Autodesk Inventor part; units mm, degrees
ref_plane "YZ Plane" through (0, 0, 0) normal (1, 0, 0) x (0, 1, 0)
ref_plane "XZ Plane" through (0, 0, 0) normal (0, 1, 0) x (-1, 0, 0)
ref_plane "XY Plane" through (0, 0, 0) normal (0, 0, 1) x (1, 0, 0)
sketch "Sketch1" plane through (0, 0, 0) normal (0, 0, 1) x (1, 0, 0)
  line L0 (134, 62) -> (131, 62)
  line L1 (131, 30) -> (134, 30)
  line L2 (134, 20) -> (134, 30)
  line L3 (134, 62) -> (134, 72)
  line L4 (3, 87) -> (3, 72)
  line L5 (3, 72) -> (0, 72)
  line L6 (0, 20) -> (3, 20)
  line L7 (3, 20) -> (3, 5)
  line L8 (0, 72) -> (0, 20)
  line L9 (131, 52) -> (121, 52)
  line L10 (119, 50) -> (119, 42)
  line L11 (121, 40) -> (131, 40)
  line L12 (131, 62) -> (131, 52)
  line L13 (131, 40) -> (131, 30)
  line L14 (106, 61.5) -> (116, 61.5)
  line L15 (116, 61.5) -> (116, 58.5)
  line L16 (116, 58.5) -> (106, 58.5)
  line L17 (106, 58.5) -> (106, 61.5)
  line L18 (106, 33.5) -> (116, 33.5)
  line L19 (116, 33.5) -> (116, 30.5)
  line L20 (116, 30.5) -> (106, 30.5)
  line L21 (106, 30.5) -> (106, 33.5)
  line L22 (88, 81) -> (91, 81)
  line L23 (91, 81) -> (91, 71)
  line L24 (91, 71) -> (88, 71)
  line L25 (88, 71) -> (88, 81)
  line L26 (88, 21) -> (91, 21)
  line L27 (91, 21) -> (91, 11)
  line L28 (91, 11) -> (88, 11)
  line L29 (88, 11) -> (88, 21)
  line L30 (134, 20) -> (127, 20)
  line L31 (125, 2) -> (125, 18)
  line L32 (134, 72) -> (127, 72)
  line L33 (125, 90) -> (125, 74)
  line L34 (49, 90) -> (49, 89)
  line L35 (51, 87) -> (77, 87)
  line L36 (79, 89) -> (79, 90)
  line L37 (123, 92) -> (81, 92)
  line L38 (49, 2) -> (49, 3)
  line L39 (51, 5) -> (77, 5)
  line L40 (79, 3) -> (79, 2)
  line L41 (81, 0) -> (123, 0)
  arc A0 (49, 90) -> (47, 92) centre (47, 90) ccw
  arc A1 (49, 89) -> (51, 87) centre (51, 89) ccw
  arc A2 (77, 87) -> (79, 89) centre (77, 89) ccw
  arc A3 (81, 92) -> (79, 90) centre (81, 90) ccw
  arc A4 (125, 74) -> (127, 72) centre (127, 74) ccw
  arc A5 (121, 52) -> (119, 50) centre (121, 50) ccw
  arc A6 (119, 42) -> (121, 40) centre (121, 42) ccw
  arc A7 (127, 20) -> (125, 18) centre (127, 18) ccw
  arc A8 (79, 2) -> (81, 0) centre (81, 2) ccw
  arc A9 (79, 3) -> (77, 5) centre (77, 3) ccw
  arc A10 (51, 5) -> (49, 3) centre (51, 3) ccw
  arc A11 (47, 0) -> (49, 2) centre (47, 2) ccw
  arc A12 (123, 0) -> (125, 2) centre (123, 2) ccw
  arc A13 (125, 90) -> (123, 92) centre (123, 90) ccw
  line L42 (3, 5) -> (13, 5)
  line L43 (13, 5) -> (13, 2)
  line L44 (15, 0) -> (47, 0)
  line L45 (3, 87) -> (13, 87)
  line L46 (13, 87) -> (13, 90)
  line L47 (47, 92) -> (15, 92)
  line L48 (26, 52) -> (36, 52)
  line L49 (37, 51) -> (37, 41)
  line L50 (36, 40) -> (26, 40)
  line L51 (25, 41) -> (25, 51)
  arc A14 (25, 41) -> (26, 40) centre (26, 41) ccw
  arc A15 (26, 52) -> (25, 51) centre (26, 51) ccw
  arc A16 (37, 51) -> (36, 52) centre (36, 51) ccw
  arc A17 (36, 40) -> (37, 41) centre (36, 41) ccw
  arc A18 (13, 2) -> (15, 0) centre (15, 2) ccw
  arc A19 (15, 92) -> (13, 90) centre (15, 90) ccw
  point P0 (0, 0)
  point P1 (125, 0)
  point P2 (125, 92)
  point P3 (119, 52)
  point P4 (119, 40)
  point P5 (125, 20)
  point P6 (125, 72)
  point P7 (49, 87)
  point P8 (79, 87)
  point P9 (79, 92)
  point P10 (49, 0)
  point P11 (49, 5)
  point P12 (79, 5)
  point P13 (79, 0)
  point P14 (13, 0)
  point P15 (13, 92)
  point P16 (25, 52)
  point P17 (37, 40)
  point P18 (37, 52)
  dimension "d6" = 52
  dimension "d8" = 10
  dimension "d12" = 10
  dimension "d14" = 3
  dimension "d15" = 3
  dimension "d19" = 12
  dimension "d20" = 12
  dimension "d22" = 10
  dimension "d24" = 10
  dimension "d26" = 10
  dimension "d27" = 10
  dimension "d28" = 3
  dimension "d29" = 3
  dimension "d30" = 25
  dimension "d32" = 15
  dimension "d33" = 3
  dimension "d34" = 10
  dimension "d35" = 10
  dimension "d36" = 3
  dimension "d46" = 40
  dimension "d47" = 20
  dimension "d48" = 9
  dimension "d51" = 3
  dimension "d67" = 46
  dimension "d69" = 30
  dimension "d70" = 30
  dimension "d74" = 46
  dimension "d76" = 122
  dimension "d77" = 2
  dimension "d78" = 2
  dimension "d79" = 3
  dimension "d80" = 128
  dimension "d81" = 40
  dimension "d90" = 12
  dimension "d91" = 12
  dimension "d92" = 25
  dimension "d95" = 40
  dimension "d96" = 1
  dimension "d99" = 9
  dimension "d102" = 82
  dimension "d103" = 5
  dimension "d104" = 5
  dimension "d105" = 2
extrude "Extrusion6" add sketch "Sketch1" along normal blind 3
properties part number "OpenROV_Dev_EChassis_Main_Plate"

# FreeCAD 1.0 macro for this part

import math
import FreeCAD as App
import Part
import Sketcher
from FreeCAD import Vector
Q = App.Units.Quantity


def add_polygon(sketch, points):
    """Adds a closed chain of lines whose ends are joined by coincident constraints."""
    first, n = sketch.GeometryCount, len(points)
    for a, b in zip(points, points[1:] + points[:1]):
        sketch.addGeometry(Part.LineSegment(App.Vector(*a, 0), App.Vector(*b, 0)), False)
    for i in range(n):
        sketch.addConstraint(Sketcher.Constraint("Coincident", first + i, 2, first + (i + 1) % n, 1))

doc = App.newDocument("Part")
body = doc.addObject("PartDesign::Body", "Body")

# Sketch on XY plane
sketch1 = body.newObject("Sketcher::SketchObject", "Sketch")
sketch1.AttachmentSupport = (doc.getObject("XY_Plane"), [""])
sketch1.MapMode = "FlatFace"
sketch1.addGeometry(Part.LineSegment(Vector(131, 62, 0), Vector(134, 62, 0)), False)  # 0
sketch1.addGeometry(Part.LineSegment(Vector(134, 62, 0), Vector(134, 72, 0)), False)  # 1
sketch1.addGeometry(Part.LineSegment(Vector(134, 72, 0), Vector(127, 72, 0)), False)  # 2
sketch1.addGeometry(Part.ArcOfCircle(Part.Circle(Vector(127, 74, 0), Vector(0, 0, 1), 2), math.radians(180), math.radians(270)), False)  # 3
sketch1.addGeometry(Part.LineSegment(Vector(125, 74, 0), Vector(125, 90, 0)), False)  # 4
sketch1.addGeometry(Part.ArcOfCircle(Part.Circle(Vector(123, 90, 0), Vector(0, 0, 1), 2), math.radians(0), math.radians(90)), False)  # 5
sketch1.addGeometry(Part.LineSegment(Vector(123, 92, 0), Vector(81, 92, 0)), False)  # 6
sketch1.addGeometry(Part.ArcOfCircle(Part.Circle(Vector(81, 90, 0), Vector(0, 0, 1), 2), math.radians(90), math.radians(180)), False)  # 7
sketch1.addGeometry(Part.LineSegment(Vector(79, 90, 0), Vector(79, 89, 0)), False)  # 8
sketch1.addGeometry(Part.ArcOfCircle(Part.Circle(Vector(77, 89, 0), Vector(0, 0, 1), 2), math.radians(-90), math.radians(0)), False)  # 9
sketch1.addGeometry(Part.LineSegment(Vector(77, 87, 0), Vector(51, 87, 0)), False)  # 10
sketch1.addGeometry(Part.ArcOfCircle(Part.Circle(Vector(51, 89, 0), Vector(0, 0, 1), 2), math.radians(180), math.radians(270)), False)  # 11
sketch1.addGeometry(Part.LineSegment(Vector(49, 89, 0), Vector(49, 90, 0)), False)  # 12
sketch1.addGeometry(Part.ArcOfCircle(Part.Circle(Vector(47, 90, 0), Vector(0, 0, 1), 2), math.radians(0), math.radians(90)), False)  # 13
sketch1.addGeometry(Part.LineSegment(Vector(47, 92, 0), Vector(15, 92, 0)), False)  # 14
sketch1.addGeometry(Part.ArcOfCircle(Part.Circle(Vector(15, 90, 0), Vector(0, 0, 1), 2), math.radians(90), math.radians(180)), False)  # 15
sketch1.addGeometry(Part.LineSegment(Vector(13, 90, 0), Vector(13, 87, 0)), False)  # 16
sketch1.addGeometry(Part.LineSegment(Vector(13, 87, 0), Vector(3, 87, 0)), False)  # 17
sketch1.addGeometry(Part.LineSegment(Vector(3, 87, 0), Vector(3, 72, 0)), False)  # 18
sketch1.addGeometry(Part.LineSegment(Vector(3, 72, 0), Vector(0, 72, 0)), False)  # 19
sketch1.addGeometry(Part.LineSegment(Vector(0, 72, 0), Vector(0, 20, 0)), False)  # 20
sketch1.addGeometry(Part.LineSegment(Vector(0, 20, 0), Vector(3, 20, 0)), False)  # 21
sketch1.addGeometry(Part.LineSegment(Vector(3, 20, 0), Vector(3, 5, 0)), False)  # 22
sketch1.addGeometry(Part.LineSegment(Vector(3, 5, 0), Vector(13, 5, 0)), False)  # 23
sketch1.addGeometry(Part.LineSegment(Vector(13, 5, 0), Vector(13, 2, 0)), False)  # 24
sketch1.addGeometry(Part.ArcOfCircle(Part.Circle(Vector(15, 2, 0), Vector(0, 0, 1), 2), math.radians(180), math.radians(270)), False)  # 25
sketch1.addGeometry(Part.LineSegment(Vector(15, 0, 0), Vector(47, 0, 0)), False)  # 26
sketch1.addGeometry(Part.ArcOfCircle(Part.Circle(Vector(47, 2, 0), Vector(0, 0, 1), 2), math.radians(-90), math.radians(0)), False)  # 27
sketch1.addGeometry(Part.LineSegment(Vector(49, 2, 0), Vector(49, 3, 0)), False)  # 28
sketch1.addGeometry(Part.ArcOfCircle(Part.Circle(Vector(51, 3, 0), Vector(0, 0, 1), 2), math.radians(90), math.radians(180)), False)  # 29
sketch1.addGeometry(Part.LineSegment(Vector(51, 5, 0), Vector(77, 5, 0)), False)  # 30
sketch1.addGeometry(Part.ArcOfCircle(Part.Circle(Vector(77, 3, 0), Vector(0, 0, 1), 2), math.radians(0), math.radians(90)), False)  # 31
sketch1.addGeometry(Part.LineSegment(Vector(79, 3, 0), Vector(79, 2, 0)), False)  # 32
sketch1.addGeometry(Part.ArcOfCircle(Part.Circle(Vector(81, 2, 0), Vector(0, 0, 1), 2), math.radians(180), math.radians(270)), False)  # 33
sketch1.addGeometry(Part.LineSegment(Vector(81, 0, 0), Vector(123, 0, 0)), False)  # 34
sketch1.addGeometry(Part.ArcOfCircle(Part.Circle(Vector(123, 2, 0), Vector(0, 0, 1), 2), math.radians(-90), math.radians(0)), False)  # 35
sketch1.addGeometry(Part.LineSegment(Vector(125, 2, 0), Vector(125, 18, 0)), False)  # 36
sketch1.addGeometry(Part.ArcOfCircle(Part.Circle(Vector(127, 18, 0), Vector(0, 0, 1), 2), math.radians(90), math.radians(180)), False)  # 37
sketch1.addGeometry(Part.LineSegment(Vector(127, 20, 0), Vector(134, 20, 0)), False)  # 38
sketch1.addGeometry(Part.LineSegment(Vector(134, 20, 0), Vector(134, 30, 0)), False)  # 39
sketch1.addGeometry(Part.LineSegment(Vector(134, 30, 0), Vector(131, 30, 0)), False)  # 40
sketch1.addGeometry(Part.LineSegment(Vector(131, 30, 0), Vector(131, 40, 0)), False)  # 41
sketch1.addGeometry(Part.LineSegment(Vector(131, 40, 0), Vector(121, 40, 0)), False)  # 42
sketch1.addGeometry(Part.ArcOfCircle(Part.Circle(Vector(121, 42, 0), Vector(0, 0, 1), 2), math.radians(180), math.radians(270)), False)  # 43
sketch1.addGeometry(Part.LineSegment(Vector(119, 42, 0), Vector(119, 50, 0)), False)  # 44
sketch1.addGeometry(Part.ArcOfCircle(Part.Circle(Vector(121, 50, 0), Vector(0, 0, 1), 2), math.radians(90), math.radians(180)), False)  # 45
sketch1.addGeometry(Part.LineSegment(Vector(121, 52, 0), Vector(131, 52, 0)), False)  # 46
sketch1.addGeometry(Part.LineSegment(Vector(131, 52, 0), Vector(131, 62, 0)), False)  # 47
add_polygon(sketch1, [(88, 11), (88, 21), (91, 21), (91, 11)])  # lines 48-51
add_polygon(sketch1, [(106, 30.5), (106, 33.5), (116, 33.5), (116, 30.5)])  # lines 52-55
sketch1.addGeometry(Part.ArcOfCircle(Part.Circle(Vector(26, 51, 0), Vector(0, 0, 1), 1), math.radians(90), math.radians(180)), False)  # 56
sketch1.addGeometry(Part.LineSegment(Vector(26, 52, 0), Vector(36, 52, 0)), False)  # 57
sketch1.addGeometry(Part.ArcOfCircle(Part.Circle(Vector(36, 51, 0), Vector(0, 0, 1), 1), math.radians(0), math.radians(90)), False)  # 58
sketch1.addGeometry(Part.LineSegment(Vector(37, 51, 0), Vector(37, 41, 0)), False)  # 59
sketch1.addGeometry(Part.ArcOfCircle(Part.Circle(Vector(36, 41, 0), Vector(0, 0, 1), 1), math.radians(-90), math.radians(0)), False)  # 60
sketch1.addGeometry(Part.LineSegment(Vector(36, 40, 0), Vector(26, 40, 0)), False)  # 61
sketch1.addGeometry(Part.ArcOfCircle(Part.Circle(Vector(26, 41, 0), Vector(0, 0, 1), 1), math.radians(180), math.radians(270)), False)  # 62
sketch1.addGeometry(Part.LineSegment(Vector(25, 41, 0), Vector(25, 51, 0)), False)  # 63
add_polygon(sketch1, [(106, 58.5), (106, 61.5), (116, 61.5), (116, 58.5)])  # lines 64-67
add_polygon(sketch1, [(88, 71), (88, 81), (91, 81), (91, 71)])  # lines 68-71
sketch1.addConstraint([
    Sketcher.Constraint("Coincident", 0, 2, 1, 1),
    Sketcher.Constraint("Coincident", 1, 2, 2, 1),
    Sketcher.Constraint("Tangent", 2, 2, 3, 2),
    Sketcher.Constraint("Tangent", 3, 1, 4, 1),
    Sketcher.Constraint("Tangent", 4, 2, 5, 1),
    Sketcher.Constraint("Tangent", 5, 2, 6, 1),
    Sketcher.Constraint("Tangent", 6, 2, 7, 1),
    Sketcher.Constraint("Tangent", 7, 2, 8, 1),
    Sketcher.Constraint("Tangent", 8, 2, 9, 2),
    Sketcher.Constraint("Tangent", 9, 1, 10, 1),
    Sketcher.Constraint("Tangent", 10, 2, 11, 2),
    Sketcher.Constraint("Tangent", 11, 1, 12, 1),
    Sketcher.Constraint("Tangent", 12, 2, 13, 1),
    Sketcher.Constraint("Tangent", 13, 2, 14, 1),
    Sketcher.Constraint("Tangent", 14, 2, 15, 1),
    Sketcher.Constraint("Tangent", 15, 2, 16, 1),
    Sketcher.Constraint("Coincident", 16, 2, 17, 1),
    Sketcher.Constraint("Coincident", 17, 2, 18, 1),
    Sketcher.Constraint("Coincident", 18, 2, 19, 1),
    Sketcher.Constraint("Coincident", 19, 2, 20, 1),
    Sketcher.Constraint("Coincident", 20, 2, 21, 1),
    Sketcher.Constraint("Coincident", 21, 2, 22, 1),
    Sketcher.Constraint("Coincident", 22, 2, 23, 1),
    Sketcher.Constraint("Coincident", 23, 2, 24, 1),
    Sketcher.Constraint("Tangent", 24, 2, 25, 1),
    Sketcher.Constraint("Tangent", 25, 2, 26, 1),
    Sketcher.Constraint("Tangent", 26, 2, 27, 1),
    Sketcher.Constraint("Tangent", 27, 2, 28, 1),
    Sketcher.Constraint("Tangent", 28, 2, 29, 2),
    Sketcher.Constraint("Tangent", 29, 1, 30, 1),
    Sketcher.Constraint("Tangent", 30, 2, 31, 2),
    Sketcher.Constraint("Tangent", 31, 1, 32, 1),
    Sketcher.Constraint("Tangent", 32, 2, 33, 1),
    Sketcher.Constraint("Tangent", 33, 2, 34, 1),
    Sketcher.Constraint("Tangent", 34, 2, 35, 1),
    Sketcher.Constraint("Tangent", 35, 2, 36, 1),
    Sketcher.Constraint("Tangent", 36, 2, 37, 2),
    Sketcher.Constraint("Tangent", 37, 1, 38, 1),
    Sketcher.Constraint("Coincident", 38, 2, 39, 1),
    Sketcher.Constraint("Coincident", 39, 2, 40, 1),
    Sketcher.Constraint("Coincident", 40, 2, 41, 1),
    Sketcher.Constraint("Coincident", 41, 2, 42, 1),
    Sketcher.Constraint("Tangent", 42, 2, 43, 2),
    Sketcher.Constraint("Tangent", 43, 1, 44, 1),
    Sketcher.Constraint("Tangent", 44, 2, 45, 2),
    Sketcher.Constraint("Tangent", 45, 1, 46, 1),
    Sketcher.Constraint("Coincident", 46, 2, 47, 1),
    Sketcher.Constraint("Coincident", 47, 2, 0, 1),
    Sketcher.Constraint("Tangent", 56, 1, 57, 1),
    Sketcher.Constraint("Tangent", 57, 2, 58, 2),
    Sketcher.Constraint("Tangent", 58, 1, 59, 1),
    Sketcher.Constraint("Tangent", 59, 2, 60, 2),
    Sketcher.Constraint("Tangent", 60, 1, 61, 1),
    Sketcher.Constraint("Tangent", 61, 2, 62, 2),
    Sketcher.Constraint("Tangent", 62, 1, 63, 1),
    Sketcher.Constraint("Tangent", 63, 2, 56, 2),
    Sketcher.Constraint("Horizontal", 0),
    Sketcher.Constraint("Vertical", 1),
    Sketcher.Constraint("Horizontal", 2),
    Sketcher.Constraint("Vertical", 4),
    Sketcher.Constraint("Horizontal", 6),
    Sketcher.Constraint("Vertical", 8),
    Sketcher.Constraint("Horizontal", 10),
    Sketcher.Constraint("Vertical", 12),
    Sketcher.Constraint("Horizontal", 14),
    Sketcher.Constraint("Vertical", 16),
    Sketcher.Constraint("Horizontal", 17),
    Sketcher.Constraint("Vertical", 18),
    Sketcher.Constraint("Horizontal", 19),
    Sketcher.Constraint("Vertical", 20),
    Sketcher.Constraint("Horizontal", 21),
    Sketcher.Constraint("Vertical", 22),
    Sketcher.Constraint("Horizontal", 23),
    Sketcher.Constraint("Vertical", 24),
    Sketcher.Constraint("Horizontal", 26),
    Sketcher.Constraint("Vertical", 28),
    Sketcher.Constraint("Horizontal", 30),
    Sketcher.Constraint("Vertical", 32),
    Sketcher.Constraint("Horizontal", 34),
    Sketcher.Constraint("Vertical", 36),
    Sketcher.Constraint("Horizontal", 38),
    Sketcher.Constraint("Vertical", 39),
    Sketcher.Constraint("Horizontal", 40),
    Sketcher.Constraint("Vertical", 41),
    Sketcher.Constraint("Horizontal", 42),
    Sketcher.Constraint("Vertical", 44),
    Sketcher.Constraint("Horizontal", 46),
    Sketcher.Constraint("Vertical", 47),
    Sketcher.Constraint("Vertical", 48),
    Sketcher.Constraint("Horizontal", 49),
    Sketcher.Constraint("Vertical", 50),
    Sketcher.Constraint("Horizontal", 51),
    Sketcher.Constraint("Vertical", 52),
    Sketcher.Constraint("Horizontal", 53),
    Sketcher.Constraint("Vertical", 54),
    Sketcher.Constraint("Horizontal", 55),
    Sketcher.Constraint("Horizontal", 57),
    Sketcher.Constraint("Vertical", 59),
    Sketcher.Constraint("Horizontal", 61),
    Sketcher.Constraint("Vertical", 63),
    Sketcher.Constraint("Vertical", 64),
    Sketcher.Constraint("Horizontal", 65),
    Sketcher.Constraint("Vertical", 66),
    Sketcher.Constraint("Horizontal", 67),
    Sketcher.Constraint("Vertical", 68),
    Sketcher.Constraint("Horizontal", 69),
    Sketcher.Constraint("Vertical", 70),
    Sketcher.Constraint("Horizontal", 71),
    Sketcher.Constraint("Equal", 3, 5),
    Sketcher.Constraint("Equal", 5, 7),
    Sketcher.Constraint("Equal", 7, 9),
    Sketcher.Constraint("Equal", 9, 11),
    Sketcher.Constraint("Equal", 11, 13),
    Sketcher.Constraint("Equal", 13, 15),
    Sketcher.Constraint("Equal", 15, 25),
    Sketcher.Constraint("Equal", 25, 27),
    Sketcher.Constraint("Equal", 27, 29),
    Sketcher.Constraint("Equal", 29, 31),
    Sketcher.Constraint("Equal", 31, 33),
    Sketcher.Constraint("Equal", 33, 35),
    Sketcher.Constraint("Equal", 35, 37),
    Sketcher.Constraint("Equal", 37, 43),
    Sketcher.Constraint("Equal", 43, 45),
    Sketcher.Constraint("Equal", 56, 58),
    Sketcher.Constraint("Equal", 58, 60),
    Sketcher.Constraint("Equal", 60, 62),
    Sketcher.Constraint("PointOnObject", 19, 2, -2),
    Sketcher.Constraint("PointOnObject", 25, 2, -1),
    Sketcher.Constraint("PointOnObject", 33, 2, -1),
    Sketcher.Constraint("Horizontal", 7, 3, 13, 3),
    Sketcher.Constraint("Horizontal", 10, 2, 16, 2),
    Sketcher.Constraint("Horizontal", 2, 2, 18, 2),
    Sketcher.Constraint("Horizontal", 23, 2, 29, 1),
    Sketcher.Constraint("Horizontal", 21, 2, 37, 1),
    Sketcher.Constraint("Horizontal", 46, 2, 56, 1),
    Sketcher.Constraint("Horizontal", 42, 2, 60, 1),
    Sketcher.Constraint("Vertical", 15, 3, 25, 3),
    Sketcher.Constraint("Vertical", 13, 3, 27, 3),
    Sketcher.Constraint("Vertical", 9, 3, 31, 3),
    Sketcher.Constraint("Vertical", 5, 3, 35, 3),
    Sketcher.Constraint("Vertical", 18, 2, 21, 2),
    Sketcher.Constraint("Vertical", 1, 2, 38, 2),
    Sketcher.Constraint("Vertical", 41, 2, 46, 2),
    Sketcher.Constraint("Vertical", 55, 2, 64, 2),
    Sketcher.Constraint("Vertical", 54, 2, 65, 2),
    Sketcher.Constraint("Vertical", 51, 2, 68, 2),
    Sketcher.Constraint("Vertical", 50, 2, 69, 2),
    Sketcher.Constraint("Equal", 0, 19),
    Sketcher.Constraint("Equal", 23, 42),
    Sketcher.Constraint("Equal", 40, 49),
    Sketcher.Constraint("Equal", 46, 53),
    Sketcher.Constraint("Equal", 55, 57),
    Sketcher.Constraint("Equal", 67, 1),
    Sketcher.Constraint("Equal", 71, 16),
    Sketcher.Constraint("Equal", 18, 22),
    Sketcher.Constraint("Equal", 16, 24),
    Sketcher.Constraint("Equal", 1, 39),
    Sketcher.Constraint("Equal", 39, 41),
    Sketcher.Constraint("Equal", 41, 47),
    Sketcher.Constraint("Equal", 47, 48),
    Sketcher.Constraint("Equal", 24, 52),
    Sketcher.Constraint("Equal", 50, 59),
    Sketcher.Constraint("Equal", 54, 64),
    Sketcher.Constraint("Equal", 63, 68),
    Sketcher.Constraint("Radius", 3, Q("2 mm")),
    Sketcher.Constraint("Radius", 56, Q("1 mm")),
    Sketcher.Constraint("DistanceX", 0, 1, 0, 2, Q("3 mm")),
    Sketcher.Constraint("DistanceX", 17, 2, 17, 1, Q("10 mm")),
    Sketcher.Constraint("DistanceY", 18, 2, 18, 1, Q("15 mm")),
    Sketcher.Constraint("DistanceX", -1, 1, 62, 1, Q("25 mm")),
    Sketcher.Constraint("DistanceX", 2, 2, 2, 1, Q("7 mm")),
    Sketcher.Constraint("DistanceX", 6, 2, 6, 1, Q("42 mm")),
    Sketcher.Constraint("DistanceX", 10, 2, 10, 1, Q("26 mm")),
    Sketcher.Constraint("DistanceX", 14, 2, 14, 1, Q("32 mm")),
    Sketcher.Constraint("DistanceX", -1, 1, 48, 2, Q("88 mm")),
    Sketcher.Constraint("DistanceY", -1, 1, 48, 2, Q("21 mm")),
    Sketcher.Constraint("DistanceX", -1, 1, 52, 2, Q("106 mm")),
    Sketcher.Constraint("DistanceY", -1, 1, 68, 2, Q("81 mm")),
    Sketcher.Constraint("DistanceY", -1, 1, 52, 2, Q("33.5 mm")),
    Sketcher.Constraint("DistanceY", -1, 1, 64, 2, Q("61.5 mm")),
])
pad1 = body.newObject("PartDesign::Pad", "Pad")
pad1.Profile = sketch1
pad1.Length = 3

doc.recompute()
